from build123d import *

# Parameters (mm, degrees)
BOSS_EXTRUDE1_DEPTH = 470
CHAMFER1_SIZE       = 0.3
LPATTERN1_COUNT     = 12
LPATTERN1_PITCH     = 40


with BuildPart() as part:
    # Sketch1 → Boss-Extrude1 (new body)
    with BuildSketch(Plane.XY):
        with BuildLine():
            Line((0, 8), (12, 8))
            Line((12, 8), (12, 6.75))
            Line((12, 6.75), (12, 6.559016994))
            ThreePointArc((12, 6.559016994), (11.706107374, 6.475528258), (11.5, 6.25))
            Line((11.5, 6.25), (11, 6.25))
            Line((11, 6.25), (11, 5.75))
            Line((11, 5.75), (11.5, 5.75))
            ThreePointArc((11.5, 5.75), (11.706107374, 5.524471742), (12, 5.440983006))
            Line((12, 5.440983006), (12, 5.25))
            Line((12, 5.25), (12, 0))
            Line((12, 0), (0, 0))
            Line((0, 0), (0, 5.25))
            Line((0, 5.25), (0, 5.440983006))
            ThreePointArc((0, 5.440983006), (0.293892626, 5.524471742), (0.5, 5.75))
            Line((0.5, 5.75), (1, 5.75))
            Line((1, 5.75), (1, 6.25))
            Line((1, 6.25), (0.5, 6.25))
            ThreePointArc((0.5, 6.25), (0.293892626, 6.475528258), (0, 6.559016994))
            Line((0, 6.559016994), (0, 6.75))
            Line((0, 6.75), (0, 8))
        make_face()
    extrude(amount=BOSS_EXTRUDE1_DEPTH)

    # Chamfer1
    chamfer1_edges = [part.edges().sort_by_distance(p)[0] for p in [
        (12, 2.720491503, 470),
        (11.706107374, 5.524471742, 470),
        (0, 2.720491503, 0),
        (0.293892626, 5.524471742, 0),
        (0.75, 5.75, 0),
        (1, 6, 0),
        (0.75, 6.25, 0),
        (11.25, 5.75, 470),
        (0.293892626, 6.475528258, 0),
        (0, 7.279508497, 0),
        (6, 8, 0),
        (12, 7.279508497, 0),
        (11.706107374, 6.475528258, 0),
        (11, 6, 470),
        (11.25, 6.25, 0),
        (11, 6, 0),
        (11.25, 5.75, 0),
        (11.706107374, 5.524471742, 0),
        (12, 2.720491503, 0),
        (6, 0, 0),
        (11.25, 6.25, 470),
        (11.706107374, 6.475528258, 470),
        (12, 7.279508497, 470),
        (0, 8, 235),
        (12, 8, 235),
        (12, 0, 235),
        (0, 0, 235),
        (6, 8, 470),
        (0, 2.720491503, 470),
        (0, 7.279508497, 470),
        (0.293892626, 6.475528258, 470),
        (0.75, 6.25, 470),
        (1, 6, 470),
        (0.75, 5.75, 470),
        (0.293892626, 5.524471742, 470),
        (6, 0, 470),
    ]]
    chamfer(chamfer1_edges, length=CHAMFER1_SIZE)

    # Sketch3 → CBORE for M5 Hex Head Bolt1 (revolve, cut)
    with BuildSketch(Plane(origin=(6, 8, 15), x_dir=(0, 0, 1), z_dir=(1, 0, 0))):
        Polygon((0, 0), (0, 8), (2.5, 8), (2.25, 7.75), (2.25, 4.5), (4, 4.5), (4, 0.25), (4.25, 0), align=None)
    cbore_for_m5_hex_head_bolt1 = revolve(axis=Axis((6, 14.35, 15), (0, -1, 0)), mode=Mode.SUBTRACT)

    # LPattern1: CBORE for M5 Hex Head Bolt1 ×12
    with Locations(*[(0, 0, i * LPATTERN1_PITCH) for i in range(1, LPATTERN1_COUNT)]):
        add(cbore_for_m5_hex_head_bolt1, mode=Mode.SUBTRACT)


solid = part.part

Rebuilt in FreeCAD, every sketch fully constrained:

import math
import FreeCAD as App
import Part
import Sketcher
Q = App.Units.Quantity


def edges_at(feature, points):
    """Names of the edges that pass closest to the given points."""
    edges = feature.Shape.Edges
    near = lambda p: min(range(len(edges)), key=lambda i: edges[i].distToShape(Part.Vertex(*p))[0])
    return sorted({f"Edge{near(p) + 1}" for p in points})


def add_polygon(sketch, points):
    """Adds a closed chain of lines whose ends are joined by coincident constraints."""
    first, n = sketch.GeometryCount, len(points)
    for a, b in zip(points, points[1:] + points[:1]):
        sketch.addGeometry(Part.LineSegment(App.Vector(*a, 0), App.Vector(*b, 0)), False)
    for i in range(n):
        sketch.addConstraint(Sketcher.Constraint("Coincident", first + i, 2, first + (i + 1) % n, 1))

doc = App.newDocument("Part")
params = doc.addObject("Spreadsheet::Sheet", "Params")
for row, (alias, value) in enumerate([
    ("sketch1_width", "12 mm"),
    ("sketch1_width2", "0.5 mm"),
    ("pad1_length", "470 mm"),
    ("chamfer_size", "0.3 mm"),
    ("sketch2_width", "8 mm"),
    ("sketch2_height", "2.5 mm"),
    ("groove_angle", "360 deg"),
    ("linearpattern_pitch", "40 mm"),
], start=1):
    params.set(f"A{row}", alias)
    params.set(f"B{row}", "=" + value)
    params.setAlias(f"B{row}", alias)

body = doc.addObject("PartDesign::Body", "Body")

sketch1 = doc.addObject("Sketcher::SketchObject", "Sketch")
body.addObject(sketch1)
sketch1.AttachmentSupport = (doc.XY_Plane, [""])
sketch1.MapMode = "FlatFace"
sketch1.addGeometry(Part.LineSegment(App.Vector(12, 8, 0), App.Vector(0, 8, 0)), False)
sketch1.addGeometry(Part.LineSegment(App.Vector(0, 8, 0), App.Vector(0, 6.6, 0)), False)
sketch1.addGeometry(Part.ArcOfCircle(Part.Circle(App.Vector(0, 6, 0), App.Vector(0, 0, 1), 0.6), math.radians(27), math.radians(90)), False)
sketch1.addGeometry(Part.LineSegment(App.Vector(0.5, 6.2, 0), App.Vector(1, 6.2, 0)), False)
sketch1.addGeometry(Part.LineSegment(App.Vector(1, 6.2, 0), App.Vector(1, 5.8, 0)), False)
sketch1.addGeometry(Part.LineSegment(App.Vector(1, 5.8, 0), App.Vector(0.5, 5.8, 0)), False)
sketch1.addGeometry(Part.ArcOfCircle(Part.Circle(App.Vector(0, 6, 0), App.Vector(0, 0, 1), 0.6), math.radians(-90), math.radians(-27)), False)
sketch1.addGeometry(Part.LineSegment(App.Vector(0, 5.4, 0), App.Vector(0, 0, 0)), False)
sketch1.addGeometry(Part.LineSegment(App.Vector(0, 0, 0), App.Vector(12, 0, 0)), False)
sketch1.addGeometry(Part.LineSegment(App.Vector(12, 0, 0), App.Vector(12, 5.4, 0)), False)
sketch1.addGeometry(Part.ArcOfCircle(Part.Circle(App.Vector(12, 6, 0), App.Vector(0, 0, 1), 0.6), math.radians(-153), math.radians(-90)), False)
sketch1.addGeometry(Part.LineSegment(App.Vector(11.5, 5.8, 0), App.Vector(11, 5.8, 0)), False)
sketch1.addGeometry(Part.LineSegment(App.Vector(11, 5.8, 0), App.Vector(11, 6.2, 0)), False)
sketch1.addGeometry(Part.LineSegment(App.Vector(11, 6.2, 0), App.Vector(11.5, 6.2, 0)), False)
sketch1.addGeometry(Part.ArcOfCircle(Part.Circle(App.Vector(12, 6, 0), App.Vector(0, 0, 1), 0.6), math.radians(90), math.radians(153)), False)
sketch1.addGeometry(Part.LineSegment(App.Vector(12, 6.6, 0), App.Vector(12, 8, 0)), False)
sketch1.addConstraint(Sketcher.Constraint("Coincident", 0, 2, 1, 1))
sketch1.addConstraint(Sketcher.Constraint("Coincident", 1, 2, 2, 2))
sketch1.addConstraint(Sketcher.Constraint("Coincident", 2, 1, 3, 1))
sketch1.addConstraint(Sketcher.Constraint("Coincident", 3, 2, 4, 1))
sketch1.addConstraint(Sketcher.Constraint("Coincident", 4, 2, 5, 1))
sketch1.addConstraint(Sketcher.Constraint("Coincident", 5, 2, 6, 2))
sketch1.addConstraint(Sketcher.Constraint("Coincident", 6, 1, 7, 1))
sketch1.addConstraint(Sketcher.Constraint("Coincident", 7, 2, 8, 1))
sketch1.addConstraint(Sketcher.Constraint("Coincident", 8, 2, 9, 1))
sketch1.addConstraint(Sketcher.Constraint("Coincident", 9, 2, 10, 2))
sketch1.addConstraint(Sketcher.Constraint("Coincident", 10, 1, 11, 1))
sketch1.addConstraint(Sketcher.Constraint("Coincident", 11, 2, 12, 1))
sketch1.addConstraint(Sketcher.Constraint("Coincident", 12, 2, 13, 1))
sketch1.addConstraint(Sketcher.Constraint("Coincident", 13, 2, 14, 2))
sketch1.addConstraint(Sketcher.Constraint("Coincident", 14, 1, 15, 1))
sketch1.addConstraint(Sketcher.Constraint("Coincident", 15, 2, 0, 1))
sketch1.addConstraint(Sketcher.Constraint("Horizontal", 0))
sketch1.addConstraint(Sketcher.Constraint("Vertical", 1))
sketch1.addConstraint(Sketcher.Constraint("Horizontal", 3))
sketch1.addConstraint(Sketcher.Constraint("Vertical", 4))
sketch1.addConstraint(Sketcher.Constraint("Horizontal", 5))
sketch1.addConstraint(Sketcher.Constraint("Vertical", 7))
sketch1.addConstraint(Sketcher.Constraint("Horizontal", 8))
sketch1.addConstraint(Sketcher.Constraint("Vertical", 9))
sketch1.addConstraint(Sketcher.Constraint("Horizontal", 11))
sketch1.addConstraint(Sketcher.Constraint("Vertical", 12))
sketch1.addConstraint(Sketcher.Constraint("Horizontal", 13))
sketch1.addConstraint(Sketcher.Constraint("Vertical", 15))
sketch1.addConstraint(Sketcher.Constraint("Coincident", 7, 2, -1, 1))
sketch1.addConstraint(Sketcher.Constraint("Coincident", 6, 3, 2, 3))
sketch1.addConstraint(Sketcher.Constraint("Coincident", 14, 3, 10, 3))
sketch1.addConstraint(Sketcher.Constraint("Equal", 2, 6))
sketch1.addConstraint(Sketcher.Constraint("Equal", 6, 10))
sketch1.addConstraint(Sketcher.Constraint("Equal", 10, 14))
sketch1.addConstraint(Sketcher.Constraint("PointOnObject", 2, 3, -2))
sketch1.addConstraint(Sketcher.Constraint("PointOnObject", 0, 2, -2))
sketch1.addConstraint(Sketcher.Constraint("Horizontal", 6, 3, 10, 3))
sketch1.addConstraint(Sketcher.Constraint("Horizontal", 5, 2, 10, 1))
sketch1.addConstraint(Sketcher.Constraint("Horizontal", 3, 2, 12, 2))
sketch1.addConstraint(Sketcher.Constraint("Vertical", 2, 1, 5, 2))
sketch1.addConstraint(Sketcher.Constraint("Vertical", 14, 3, 8, 2))
sketch1.addConstraint(Sketcher.Constraint("Vertical", 9, 2, 14, 1))
sketch1.addConstraint(Sketcher.Constraint("Equal", 5, 11))
sketch1.addConstraint(Sketcher.Constraint("Equal", 13, 4))
sketch1.addConstraint(Sketcher.Constraint("DistanceX", 0, 2, 0, 1, Q("12 mm")))
sketch1.addConstraint(Sketcher.Constraint("DistanceX", 3, 1, 3, 2, Q("0.5 mm")))
sketch1.addConstraint(Sketcher.Constraint("DistanceY", -1, 1, 2, 3, Q("6 mm")))
sketch1.addConstraint(Sketcher.Constraint("DistanceY", -1, 1, 0, 2, Q("8 mm")))
sketch1.addConstraint(Sketcher.Constraint("DistanceX", -1, 1, 3, 2, Q("1 mm")))
sketch1.setExpression("Constraints[44]", "Params.sketch1_width")
sketch1.setExpression("Constraints[45]", "Params.sketch1_width2")
pad1 = doc.addObject("PartDesign::Pad", "Pad")
body.addObject(pad1)
pad1.Profile = sketch1
pad1.setExpression("Length", "Params.pad1_length")
doc.recompute()

chamfer = doc.addObject("PartDesign::Chamfer", "Chamfer")
body.addObject(chamfer)
chamfer.Base = (pad1, edges_at(pad1, [
    (12, 2.72, 470),
    (11.706, 5.524, 470),
    (0, 2.72, 0),
    (0.294, 5.524, 0),
    (0.75, 5.75, 0),
    (1, 6, 0),
    (0.75, 6.25, 0),
    (11.25, 5.75, 470),
    (0.294, 6.476, 0),
    (0, 7.28, 0),
    (6, 8, 0),
    (12, 7.28, 0),
    (11.706, 6.476, 0),
    (11, 6, 470),
    (11.25, 6.25, 0),
    (11, 6, 0),
    (11.25, 5.75, 0),
    (11.706, 5.524, 0),
    (12, 2.72, 0),
    (6, 0, 0),
    (11.25, 6.25, 470),
    (11.706, 6.476, 470),
    (12, 7.28, 470),
    (0, 8, 235),
    (12, 8, 235),
    (12, 0, 235),
    (0, 0, 235),
    (6, 8, 470),
    (0, 2.72, 470),
    (0, 7.28, 470),
    (0.294, 6.476, 470),
    (0.75, 6.25, 470),
    (1, 6, 470),
    (0.75, 5.75, 470),
    (0.294, 5.524, 470),
    (6, 0, 470),
]))
chamfer.setExpression("Size", "Params.chamfer_size")

sketch2 = doc.addObject("Sketcher::SketchObject", "Sketch001")
body.addObject(sketch2)
sketch2.AttachmentSupport = (doc.YZ_Plane, [""])
sketch2.MapMode = "FlatFace"
sketch2.AttachmentOffset = App.Placement(App.Vector(0, 0, 6), App.Rotation())
add_polygon(sketch2, [(0, 15), (8, 15), (8, 19.25), (7.75, 19), (3.5, 19), (3.5, 17.25), (0.25, 17.25), (0, 17.5)])
sketch2.addGeometry(Part.LineSegment(App.Vector(8, 15, 0), App.Vector(0, 15, 0)), True)
sketch2.addConstraint(Sketcher.Constraint("Horizontal", 0))
sketch2.addConstraint(Sketcher.Constraint("Vertical", 1))
sketch2.addConstraint(Sketcher.Constraint("Horizontal", 3))
sketch2.addConstraint(Sketcher.Constraint("Vertical", 4))
sketch2.addConstraint(Sketcher.Constraint("Horizontal", 5))
sketch2.addConstraint(Sketcher.Constraint("Vertical", 7))
sketch2.addConstraint(Sketcher.Constraint("Horizontal", 8))
sketch2.addConstraint(Sketcher.Constraint("Coincident", 8, 1, 0, 2))
sketch2.addConstraint(Sketcher.Constraint("PointOnObject", 6, 2, -2))
sketch2.addConstraint(Sketcher.Constraint("PointOnObject", 8, 2, -2))
sketch2.addConstraint(Sketcher.Constraint("Perpendicular", 2, 6))
sketch2.addConstraint(Sketcher.Constraint("Equal", 3, 1))
sketch2.addConstraint(Sketcher.Constraint("Equal", 2, 6))
sketch2.addConstraint(Sketcher.Constraint("DistanceX", 0, 1, 0, 2, Q("8 mm")))
sketch2.addConstraint(Sketcher.Constraint("Angle", 2, Q("-135 deg")))
sketch2.addConstraint(Sketcher.Constraint("DistanceY", 7, 2, 7, 1, Q("2.5 mm")))
sketch2.addConstraint(Sketcher.Constraint("DistanceY", -1, 1, 0, 2, Q("15 mm")))
sketch2.addConstraint(Sketcher.Constraint("DistanceY", -1, 1, 2, 2, Q("19 mm")))
sketch2.addConstraint(Sketcher.Constraint("DistanceY", 4, 2, 1, 2, Q("2 mm")))
sketch2.setExpression("Constraints[21]", "Params.sketch2_width")
sketch2.setExpression("Constraints[23]", "Params.sketch2_height")
groove = doc.addObject("PartDesign::Groove", "Groove")
body.addObject(groove)
groove.Profile = sketch2
groove.ReferenceAxis = (sketch2, ["Axis0"])
groove.setExpression("Angle", "Params.groove_angle")
doc.recompute()

linearpattern = doc.addObject("PartDesign::LinearPattern", "LinearPattern")
body.addObject(linearpattern)
linearpattern.Originals = [groove]
linearpattern.Direction = (doc.Z_Axis, [""])
linearpattern.Mode = "offset"
linearpattern.setExpression("Offset", "Params.linearpattern_pitch")
linearpattern.Occurrences = 12
body.Tip = linearpattern

doc.recompute()
